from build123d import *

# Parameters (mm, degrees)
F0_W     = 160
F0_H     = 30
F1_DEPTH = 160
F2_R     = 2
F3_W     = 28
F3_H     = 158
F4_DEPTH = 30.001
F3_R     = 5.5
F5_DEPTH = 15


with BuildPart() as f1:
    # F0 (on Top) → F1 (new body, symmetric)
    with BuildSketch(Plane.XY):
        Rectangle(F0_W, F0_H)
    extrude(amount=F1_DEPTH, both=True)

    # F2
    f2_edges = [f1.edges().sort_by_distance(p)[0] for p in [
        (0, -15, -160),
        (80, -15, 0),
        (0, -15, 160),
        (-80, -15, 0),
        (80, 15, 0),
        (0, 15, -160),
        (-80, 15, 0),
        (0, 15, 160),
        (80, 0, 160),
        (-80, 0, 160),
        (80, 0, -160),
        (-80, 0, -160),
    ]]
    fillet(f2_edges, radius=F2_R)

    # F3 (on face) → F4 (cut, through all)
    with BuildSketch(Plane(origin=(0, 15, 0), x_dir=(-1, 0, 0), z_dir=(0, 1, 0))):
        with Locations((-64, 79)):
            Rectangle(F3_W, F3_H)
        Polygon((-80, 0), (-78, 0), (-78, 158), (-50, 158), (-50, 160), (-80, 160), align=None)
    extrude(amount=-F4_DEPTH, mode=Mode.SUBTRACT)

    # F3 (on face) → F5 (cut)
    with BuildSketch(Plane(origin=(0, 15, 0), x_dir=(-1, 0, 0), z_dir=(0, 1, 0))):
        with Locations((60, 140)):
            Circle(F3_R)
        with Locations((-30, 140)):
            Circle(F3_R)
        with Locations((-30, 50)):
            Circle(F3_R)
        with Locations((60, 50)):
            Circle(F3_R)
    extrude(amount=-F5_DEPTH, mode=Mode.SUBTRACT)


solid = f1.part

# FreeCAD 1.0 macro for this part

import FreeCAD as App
import Part
import Sketcher

V = App.Vector
Q = App.Units.Quantity


def add_polygon(sketch, points):
    """Adds a closed chain of lines whose ends are joined by coincident constraints."""
    first, n = sketch.GeometryCount, len(points)
    for a, b in zip(points, points[1:] + points[:1]):
        sketch.addGeometry(Part.LineSegment(App.Vector(*a, 0), App.Vector(*b, 0)), False)
    for i in range(n):
        sketch.addConstraint(Sketcher.Constraint("Coincident", first + i, 2, first + (i + 1) % n, 1))

doc = App.newDocument("Part")
body = doc.addObject("PartDesign::Body", "Body")

# Sketch on XY plane
sketch1 = body.newObject("Sketcher::SketchObject", "Sketch")
sketch1.AttachmentSupport = (doc.getObject("XY_Plane"), [""])
sketch1.MapMode = "FlatFace"
add_polygon(sketch1, [(-80, 15), (-80, -15), (80, -15), (80, 15)])  # lines 0-3
sketch1.addConstraint([
    Sketcher.Constraint("Vertical", 0),
    Sketcher.Constraint("Horizontal", 1),
    Sketcher.Constraint("Vertical", 2),
    Sketcher.Constraint("Horizontal", 3),
    Sketcher.Constraint("Symmetric", 0, 2, 2, 2, -1, 1),
    Sketcher.Constraint("DistanceX", 1, 1, 1, 2, Q("160 mm")),
    Sketcher.Constraint("DistanceY", 0, 2, 0, 1, Q("30 mm")),
])
pad1 = body.newObject("PartDesign::Pad", "Pad")
pad1.Profile = sketch1
pad1.Length = 320
pad1.Midplane = True
doc.recompute()

fillet = body.newObject("PartDesign::Fillet", "Fillet")
fillet.Base = (pad1, ["Edge1"])
fillet.UseAllEdges = True
fillet.Radius = 2

# Sketch on XZ plane
sketch2 = body.newObject("Sketcher::SketchObject", "Sketch001")
sketch2.AttachmentSupport = (doc.getObject("XZ_Plane"), [""])
sketch2.MapMode = "FlatFace"
sketch2.AttachmentOffset = App.Placement(V(0, 0, -15), App.Rotation())
add_polygon(sketch2, [(50, 0), (50, 160), (80, 160), (80, 0)])  # lines 0-3
sketch2.addConstraint([
    Sketcher.Constraint("Vertical", 0),
    Sketcher.Constraint("Horizontal", 1),
    Sketcher.Constraint("Vertical", 2),
    Sketcher.Constraint("Horizontal", 3),
    Sketcher.Constraint("PointOnObject", 2, 2, -1),
    Sketcher.Constraint("DistanceX", 1, 1, 1, 2, Q("30 mm")),
    Sketcher.Constraint("DistanceY", 0, 1, 0, 2, Q("160 mm")),
    Sketcher.Constraint("DistanceX", -1, 1, 0, 2, Q("50 mm")),
])
pocket1 = body.newObject("PartDesign::Pocket", "Pocket")
pocket1.Profile = sketch2
pocket1.Type = "ThroughAll"
pocket1.Reversed = True

# Sketch on XZ plane
sketch3 = body.newObject("Sketcher::SketchObject", "Sketch002")
sketch3.AttachmentSupport = (doc.getObject("XZ_Plane"), [""])
sketch3.MapMode = "FlatFace"
sketch3.AttachmentOffset = App.Placement(V(0, 0, -15), App.Rotation())
sketch3.addGeometry([
    Part.Circle(V(-60, 140, 0), V(0, 0, 1), 6),
    Part.Circle(V(30, 140, 0), V(0, 0, 1), 6),
    Part.Circle(V(30, 50, 0), V(0, 0, 1), 6),
    Part.Circle(V(-60, 50, 0), V(0, 0, 1), 6),
], False)
sketch3.addConstraint([
    Sketcher.Constraint("Equal", 0, 1),
    Sketcher.Constraint("Equal", 1, 2),
    Sketcher.Constraint("Equal", 2, 3),
    Sketcher.Constraint("Horizontal", 0, 3, 1, 3),
    Sketcher.Constraint("Horizontal", 2, 3, 3, 3),
    Sketcher.Constraint("Vertical", 1, 3, 2, 3),
    Sketcher.Constraint("Vertical", 0, 3, 3, 3),
    Sketcher.Constraint("Diameter", 0, Q("11 mm")),
    Sketcher.Constraint("DistanceX", 0, 3, -1, 1, Q("60 mm")),
    Sketcher.Constraint("DistanceY", -1, 1, 0, 3, Q("140 mm")),
    Sketcher.Constraint("DistanceX", -1, 1, 1, 3, Q("30 mm")),
    Sketcher.Constraint("DistanceY", -1, 1, 2, 3, Q("50 mm")),
])
pocket2 = body.newObject("PartDesign::Pocket", "Pocket001")
pocket2.Profile = sketch3
pocket2.Length = 15
pocket2.Reversed = True

doc.recompute()
